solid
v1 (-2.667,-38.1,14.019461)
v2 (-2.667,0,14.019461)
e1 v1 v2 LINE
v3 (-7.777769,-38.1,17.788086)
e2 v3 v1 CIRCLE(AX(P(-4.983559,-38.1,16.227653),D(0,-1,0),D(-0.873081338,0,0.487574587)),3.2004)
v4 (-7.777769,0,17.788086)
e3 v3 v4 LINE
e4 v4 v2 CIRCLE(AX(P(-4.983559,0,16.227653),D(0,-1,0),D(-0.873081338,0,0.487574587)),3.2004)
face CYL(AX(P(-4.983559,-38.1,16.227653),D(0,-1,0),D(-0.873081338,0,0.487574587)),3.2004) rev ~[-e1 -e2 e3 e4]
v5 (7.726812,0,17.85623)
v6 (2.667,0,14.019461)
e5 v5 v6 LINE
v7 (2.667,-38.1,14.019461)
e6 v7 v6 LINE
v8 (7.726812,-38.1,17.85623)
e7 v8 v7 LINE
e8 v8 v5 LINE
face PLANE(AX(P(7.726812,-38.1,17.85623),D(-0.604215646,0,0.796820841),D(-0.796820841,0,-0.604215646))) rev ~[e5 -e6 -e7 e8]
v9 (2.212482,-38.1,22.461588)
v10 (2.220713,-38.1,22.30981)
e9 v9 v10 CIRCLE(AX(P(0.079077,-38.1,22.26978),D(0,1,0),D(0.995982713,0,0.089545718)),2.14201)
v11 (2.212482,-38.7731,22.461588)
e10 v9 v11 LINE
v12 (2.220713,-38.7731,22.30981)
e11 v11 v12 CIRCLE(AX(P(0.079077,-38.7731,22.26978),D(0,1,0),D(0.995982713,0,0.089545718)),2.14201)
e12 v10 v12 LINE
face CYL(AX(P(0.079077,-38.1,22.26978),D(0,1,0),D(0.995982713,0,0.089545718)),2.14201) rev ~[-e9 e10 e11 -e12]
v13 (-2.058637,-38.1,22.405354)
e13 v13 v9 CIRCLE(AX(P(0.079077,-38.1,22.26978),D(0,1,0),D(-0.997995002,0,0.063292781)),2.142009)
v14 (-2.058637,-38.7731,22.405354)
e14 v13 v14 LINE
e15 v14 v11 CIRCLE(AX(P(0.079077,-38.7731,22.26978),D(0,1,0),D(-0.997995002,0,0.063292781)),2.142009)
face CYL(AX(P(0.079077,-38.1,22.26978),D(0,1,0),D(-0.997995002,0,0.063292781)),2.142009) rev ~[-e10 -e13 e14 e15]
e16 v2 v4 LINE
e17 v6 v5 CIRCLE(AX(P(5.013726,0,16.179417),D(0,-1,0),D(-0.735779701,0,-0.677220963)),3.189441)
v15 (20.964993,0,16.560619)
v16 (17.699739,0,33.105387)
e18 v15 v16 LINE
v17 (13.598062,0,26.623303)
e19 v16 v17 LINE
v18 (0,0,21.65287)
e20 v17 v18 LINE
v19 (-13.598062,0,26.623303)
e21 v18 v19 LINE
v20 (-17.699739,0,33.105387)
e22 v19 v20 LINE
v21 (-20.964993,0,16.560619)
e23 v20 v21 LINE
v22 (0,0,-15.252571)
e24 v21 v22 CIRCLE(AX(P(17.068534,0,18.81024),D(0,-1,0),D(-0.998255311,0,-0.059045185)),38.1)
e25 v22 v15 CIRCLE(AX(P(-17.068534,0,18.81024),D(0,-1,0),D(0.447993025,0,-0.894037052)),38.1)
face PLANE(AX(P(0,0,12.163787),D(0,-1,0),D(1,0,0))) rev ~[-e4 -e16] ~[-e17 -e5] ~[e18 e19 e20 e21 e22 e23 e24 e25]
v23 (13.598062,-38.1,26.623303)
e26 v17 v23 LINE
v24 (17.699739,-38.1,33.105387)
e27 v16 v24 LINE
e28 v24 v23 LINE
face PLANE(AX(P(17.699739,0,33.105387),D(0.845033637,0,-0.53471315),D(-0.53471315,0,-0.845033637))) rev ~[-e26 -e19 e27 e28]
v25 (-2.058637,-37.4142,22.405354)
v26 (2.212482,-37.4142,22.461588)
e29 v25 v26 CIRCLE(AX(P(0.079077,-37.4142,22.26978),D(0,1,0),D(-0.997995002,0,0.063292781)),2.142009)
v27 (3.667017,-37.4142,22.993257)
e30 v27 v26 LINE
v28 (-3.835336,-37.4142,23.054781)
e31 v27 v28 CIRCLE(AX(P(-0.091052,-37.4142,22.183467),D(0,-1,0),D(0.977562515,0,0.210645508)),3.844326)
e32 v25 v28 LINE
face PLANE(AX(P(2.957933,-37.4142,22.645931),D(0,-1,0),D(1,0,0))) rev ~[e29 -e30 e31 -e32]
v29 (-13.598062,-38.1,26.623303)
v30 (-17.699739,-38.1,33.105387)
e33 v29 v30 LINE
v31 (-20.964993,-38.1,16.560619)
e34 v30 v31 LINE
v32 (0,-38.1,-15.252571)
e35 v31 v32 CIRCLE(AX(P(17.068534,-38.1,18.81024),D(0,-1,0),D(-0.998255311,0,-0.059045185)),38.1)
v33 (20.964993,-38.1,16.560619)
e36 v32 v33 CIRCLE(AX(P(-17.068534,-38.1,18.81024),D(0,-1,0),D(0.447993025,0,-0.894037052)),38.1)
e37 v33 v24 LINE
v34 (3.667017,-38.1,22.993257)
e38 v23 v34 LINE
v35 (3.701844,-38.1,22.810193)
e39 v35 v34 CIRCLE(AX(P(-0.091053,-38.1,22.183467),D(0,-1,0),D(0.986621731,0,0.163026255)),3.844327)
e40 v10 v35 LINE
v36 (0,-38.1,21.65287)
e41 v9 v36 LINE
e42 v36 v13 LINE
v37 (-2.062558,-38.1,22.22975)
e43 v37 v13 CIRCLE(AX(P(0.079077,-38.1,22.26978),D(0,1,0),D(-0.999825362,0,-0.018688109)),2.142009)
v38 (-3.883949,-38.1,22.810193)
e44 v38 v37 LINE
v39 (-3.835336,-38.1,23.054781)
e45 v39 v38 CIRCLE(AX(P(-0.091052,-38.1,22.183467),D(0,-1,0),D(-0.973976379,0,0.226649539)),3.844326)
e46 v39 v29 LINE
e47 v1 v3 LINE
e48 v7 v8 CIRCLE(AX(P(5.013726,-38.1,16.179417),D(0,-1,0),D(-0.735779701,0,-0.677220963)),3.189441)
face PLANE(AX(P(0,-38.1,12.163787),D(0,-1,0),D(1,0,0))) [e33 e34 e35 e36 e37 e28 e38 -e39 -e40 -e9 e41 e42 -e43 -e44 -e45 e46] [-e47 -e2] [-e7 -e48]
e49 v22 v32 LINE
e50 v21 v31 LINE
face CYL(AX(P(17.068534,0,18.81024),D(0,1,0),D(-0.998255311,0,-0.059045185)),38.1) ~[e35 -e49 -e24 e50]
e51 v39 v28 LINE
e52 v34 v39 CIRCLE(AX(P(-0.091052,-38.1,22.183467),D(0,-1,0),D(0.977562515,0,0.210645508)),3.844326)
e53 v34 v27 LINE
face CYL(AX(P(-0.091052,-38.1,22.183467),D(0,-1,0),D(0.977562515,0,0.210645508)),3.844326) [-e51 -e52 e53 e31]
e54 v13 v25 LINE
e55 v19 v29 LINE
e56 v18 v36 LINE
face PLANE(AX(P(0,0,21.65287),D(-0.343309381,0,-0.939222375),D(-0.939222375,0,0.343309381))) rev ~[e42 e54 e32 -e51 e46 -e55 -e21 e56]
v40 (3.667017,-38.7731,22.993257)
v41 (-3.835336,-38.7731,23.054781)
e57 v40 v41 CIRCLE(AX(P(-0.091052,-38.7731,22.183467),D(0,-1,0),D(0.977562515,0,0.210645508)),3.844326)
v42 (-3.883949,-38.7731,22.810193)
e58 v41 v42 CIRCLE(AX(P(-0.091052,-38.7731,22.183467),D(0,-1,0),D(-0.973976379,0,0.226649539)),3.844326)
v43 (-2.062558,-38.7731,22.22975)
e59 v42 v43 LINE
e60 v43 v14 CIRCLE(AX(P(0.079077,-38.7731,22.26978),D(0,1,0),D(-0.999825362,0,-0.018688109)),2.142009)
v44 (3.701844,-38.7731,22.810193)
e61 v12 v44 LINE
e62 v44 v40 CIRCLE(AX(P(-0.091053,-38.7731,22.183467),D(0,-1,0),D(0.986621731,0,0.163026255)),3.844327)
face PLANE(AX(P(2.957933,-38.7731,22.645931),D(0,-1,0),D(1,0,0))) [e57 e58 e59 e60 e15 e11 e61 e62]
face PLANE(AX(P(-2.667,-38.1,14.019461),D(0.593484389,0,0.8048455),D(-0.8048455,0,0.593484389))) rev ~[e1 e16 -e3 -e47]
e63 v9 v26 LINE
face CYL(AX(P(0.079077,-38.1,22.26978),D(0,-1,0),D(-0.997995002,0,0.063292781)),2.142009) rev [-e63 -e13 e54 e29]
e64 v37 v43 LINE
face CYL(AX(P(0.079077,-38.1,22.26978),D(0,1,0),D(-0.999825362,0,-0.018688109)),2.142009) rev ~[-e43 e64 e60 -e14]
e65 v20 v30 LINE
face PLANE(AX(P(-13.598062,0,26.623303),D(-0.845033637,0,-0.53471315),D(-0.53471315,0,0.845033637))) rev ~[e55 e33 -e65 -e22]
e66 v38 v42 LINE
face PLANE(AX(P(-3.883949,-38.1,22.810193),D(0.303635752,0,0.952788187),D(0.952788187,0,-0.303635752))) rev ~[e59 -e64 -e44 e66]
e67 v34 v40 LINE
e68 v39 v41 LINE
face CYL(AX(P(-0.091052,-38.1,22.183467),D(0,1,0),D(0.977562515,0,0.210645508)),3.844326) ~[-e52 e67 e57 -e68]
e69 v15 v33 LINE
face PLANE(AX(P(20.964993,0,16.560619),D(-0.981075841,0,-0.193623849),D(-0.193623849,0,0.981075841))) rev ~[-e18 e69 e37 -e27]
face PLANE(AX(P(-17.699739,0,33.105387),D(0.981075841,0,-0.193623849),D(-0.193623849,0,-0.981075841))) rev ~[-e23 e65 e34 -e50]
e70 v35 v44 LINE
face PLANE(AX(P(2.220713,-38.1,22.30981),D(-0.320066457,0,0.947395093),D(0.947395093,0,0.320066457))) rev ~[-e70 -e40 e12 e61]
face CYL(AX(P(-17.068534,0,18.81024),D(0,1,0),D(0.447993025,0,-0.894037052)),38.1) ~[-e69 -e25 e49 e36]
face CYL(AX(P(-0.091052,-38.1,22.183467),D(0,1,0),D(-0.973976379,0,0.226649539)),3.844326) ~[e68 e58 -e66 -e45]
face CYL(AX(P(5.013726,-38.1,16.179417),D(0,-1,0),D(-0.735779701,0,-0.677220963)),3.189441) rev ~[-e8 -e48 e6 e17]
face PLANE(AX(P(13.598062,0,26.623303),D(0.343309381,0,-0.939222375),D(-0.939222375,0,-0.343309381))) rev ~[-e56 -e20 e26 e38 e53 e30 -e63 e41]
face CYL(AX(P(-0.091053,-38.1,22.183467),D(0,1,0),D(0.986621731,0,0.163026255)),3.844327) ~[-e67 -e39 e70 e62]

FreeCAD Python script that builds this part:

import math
import FreeCAD as App
import Part
import Sketcher

V = App.Vector
Q = App.Units.Quantity

doc = App.newDocument("Part")
body = doc.addObject("PartDesign::Body", "Body")

# Sketch on XZ plane
sketch1 = doc.addObject("Sketcher::SketchObject", "Sketch")
body.addObject(sketch1)
sketch1.AttachmentSupport = (doc.XZ_Plane, [""])
sketch1.MapMode = "FlatFace"
sketch1.addGeometry(Part.LineSegment(V(-18, 33, 0), V(-21, 17, 0)), False)
sketch1.addGeometry(Part.ArcOfCircle(Part.Circle(V(17, 19, 0), V(0, 0, 1), 38), math.radians(-177), math.radians(-117)), False)
sketch1.addGeometry(Part.ArcOfCircle(Part.Circle(V(-17, 19, 0), V(0, 0, 1), 38), math.radians(-63), math.radians(-3)), False)
sketch1.addGeometry(Part.LineSegment(V(21, 17, 0), V(18, 33, 0)), False)
sketch1.addGeometry(Part.LineSegment(V(18, 33, 0), V(14, 27, 0)), False)
sketch1.addGeometry(Part.LineSegment(V(14, 27, 0), V(0, 22, 0)), False)
sketch1.addGeometry(Part.LineSegment(V(0, 22, 0), V(-14, 27, 0)), False)
sketch1.addGeometry(Part.LineSegment(V(-14, 27, 0), V(-18, 33, 0)), False)
sketch1.addConstraint(Sketcher.Constraint("Coincident", 0, 2, 1, 1))
sketch1.addConstraint(Sketcher.Constraint("Coincident", 1, 2, 2, 1))
sketch1.addConstraint(Sketcher.Constraint("Coincident", 2, 2, 3, 1))
sketch1.addConstraint(Sketcher.Constraint("Coincident", 3, 2, 4, 1))
sketch1.addConstraint(Sketcher.Constraint("Coincident", 4, 2, 5, 1))
sketch1.addConstraint(Sketcher.Constraint("Coincident", 5, 2, 6, 1))
sketch1.addConstraint(Sketcher.Constraint("Coincident", 6, 2, 7, 1))
sketch1.addConstraint(Sketcher.Constraint("Coincident", 7, 2, 0, 1))
sketch1.addConstraint(Sketcher.Constraint("Equal", 1, 2))
sketch1.addConstraint(Sketcher.Constraint("Symmetric", 1, 3, 2, 3, -2))
sketch1.addConstraint(Sketcher.Constraint("Symmetric", 4, 2, 6, 2, -2))
sketch1.addConstraint(Sketcher.Constraint("Symmetric", 3, 2, 7, 2, -2))
sketch1.addConstraint(Sketcher.Constraint("PointOnObject", 5, 2, -2))
sketch1.addConstraint(Sketcher.Constraint("Horizontal", 0, 2, 2, 2))
sketch1.addConstraint(Sketcher.Constraint("Radius", 1, Q("1.5 in")))
sketch1.addConstraint(Sketcher.Constraint("Distance", 5, Q("0.57 in")))
sketch1.addConstraint(Sketcher.Constraint("Distance", 4, Q("0.302 in")))
sketch1.addConstraint(Sketcher.Constraint("DistanceY", 4, 2, 3, 2, Q("0.2552002 in")))
sketch1.addConstraint(Sketcher.Constraint("DistanceX", 7, 2, 4, 2, 31.297801))
sketch1.addConstraint(Sketcher.Constraint("DistanceY", -1, 1, 1, 3, 18.81024))
sketch1.addConstraint(Sketcher.Constraint("DistanceY", -1, 1, 0, 2, 16.560619))
sketch1.addConstraint(Sketcher.Constraint("DistanceY", 1, 2, -1, 1, 15.252571))
sketch1.addConstraint(Sketcher.Constraint("DistanceY", -1, 1, 5, 2, 21.65287))
pad1 = doc.addObject("PartDesign::Pad", "Pad")
body.addObject(pad1)
pad1.Profile = sketch1
pad1.Length = Q("1.5 in")

# Sketch on XZ plane
sketch2 = doc.addObject("Sketcher::SketchObject", "Sketch001")
body.addObject(sketch2)
sketch2.AttachmentSupport = (doc.XZ_Plane, [""])
sketch2.MapMode = "FlatFace"
sketch2.AttachmentOffset = App.Placement(V(0, 0, 1.5 * 25.4), App.Rotation())
sketch2.addGeometry(Part.LineSegment(V(7.7, 17.9, 0), V(2.7, 14, 0)), False)
sketch2.addGeometry(Part.ArcOfCircle(Part.Circle(V(5, 16.2, 0), V(0, 0, 1), 3.2), math.radians(-137), math.radians(32)), False)
sketch2.addGeometry(Part.LineSegment(V(-2.7, 14, 0), V(-7.8, 17.8, 0)), False)
sketch2.addGeometry(Part.ArcOfCircle(Part.Circle(V(-5, 16.2, 0), V(0, 0, 1), 3.2), math.radians(151), math.radians(316)), False)
sketch2.addConstraint(Sketcher.Constraint("Coincident", 0, 1, 1, 2))
sketch2.addConstraint(Sketcher.Constraint("Coincident", 1, 1, 0, 2))
sketch2.addConstraint(Sketcher.Constraint("Coincident", 2, 1, 3, 2))
sketch2.addConstraint(Sketcher.Constraint("Coincident", 3, 1, 2, 2))
sketch2.addConstraint(Sketcher.Constraint("Symmetric", 1, 1, 2, 1, -2))
sketch2.addConstraint(Sketcher.Constraint("Equal", 0, 2))
sketch2.addConstraint(Sketcher.Constraint("Radius", 3, Q("0.126 in")))
sketch2.addConstraint(Sketcher.Constraint("Distance", 0, Q("0.25 in")))
sketch2.addConstraint(Sketcher.Constraint("DistanceX", 2, 1, 1, 1, Q("0.21 in")))
sketch2.addConstraint(Sketcher.Constraint("Radius", 1, 3.189441))
sketch2.addConstraint(Sketcher.Constraint("DistanceX", 3, 3, -1, 1, 4.983559))
sketch2.addConstraint(Sketcher.Constraint("DistanceY", -1, 1, 0, 1, 17.85623))
sketch2.addConstraint(Sketcher.Constraint("DistanceY", -1, 1, 1, 1, 14.019461))
pocket1 = doc.addObject("PartDesign::Pocket", "Pocket")
body.addObject(pocket1)
pocket1.Profile = sketch2
pocket1.Length = Q("1.5 in")

# Sketch on XZ plane
sketch3 = doc.addObject("Sketcher::SketchObject", "Sketch002")
body.addObject(sketch3)
sketch3.AttachmentSupport = (doc.XZ_Plane, [""])
sketch3.MapMode = "FlatFace"
sketch3.AttachmentOffset = App.Placement(V(0, 0, 1.5 * 25.4), App.Rotation())
sketch3.addGeometry(Part.LineSegment(V(2.22, 22.31, 0), V(3.7, 22.81, 0)), False)
sketch3.addGeometry(Part.ArcOfCircle(Part.Circle(V(-0.09, 22.18, 0), V(0, 0, 1), 3.84), math.radians(9.38), math.radians(12.16)), False)
sketch3.addGeometry(Part.ArcOfCircle(Part.Circle(V(-0.09, 22.18, 0), V(0, 0, 1), 3.84), math.radians(12), math.radians(167)), False)
sketch3.addGeometry(Part.ArcOfCircle(Part.Circle(V(-0.09, 22.18, 0), V(0, 0, 1), 3.84), math.radians(166.9), math.radians(170.62)), False)
sketch3.addGeometry(Part.LineSegment(V(-3.88, 22.81, 0), V(-2.06, 22.23, 0)), False)
sketch3.addGeometry(Part.ArcOfCircle(Part.Circle(V(0.08, 22.27, 0), V(0, 0, 1), 2.14), math.radians(176.37), math.radians(181.07)), False)
sketch3.addGeometry(Part.ArcOfCircle(Part.Circle(V(0.08, 22.27, 0), V(0, 0, 1), 2.14), math.radians(5), math.radians(176)), False)
sketch3.addGeometry(Part.ArcOfCircle(Part.Circle(V(0.08, 22.27, 0), V(0, 0, 1), 2.14), math.radians(1.07), math.radians(5.14)), False)
sketch3.addConstraint(Sketcher.Constraint("Coincident", 0, 2, 1, 1))
sketch3.addConstraint(Sketcher.Constraint("Tangent", 1, 2, 2, 1))
sketch3.addConstraint(Sketcher.Constraint("Tangent", 2, 2, 3, 1))
sketch3.addConstraint(Sketcher.Constraint("Coincident", 3, 2, 4, 1))
sketch3.addConstraint(Sketcher.Constraint("Coincident", 4, 2, 5, 2))
sketch3.addConstraint(Sketcher.Constraint("Tangent", 5, 1, 6, 2))
sketch3.addConstraint(Sketcher.Constraint("Tangent", 6, 1, 7, 2))
sketch3.addConstraint(Sketcher.Constraint("Coincident", 7, 1, 0, 1))
sketch3.addConstraint(Sketcher.Constraint("Coincident", 3, 3, 1, 3))
sketch3.addConstraint(Sketcher.Constraint("Coincident", 7, 3, 5, 3))
sketch3.addConstraint(Sketcher.Constraint("Horizontal", 0, 2, 3, 2))
sketch3.addConstraint(Sketcher.Constraint("Radius", 5, 2.142009))
sketch3.addConstraint(Sketcher.Constraint("Radius", 1, 3.844327))
sketch3.addConstraint(Sketcher.Constraint("DistanceY", 7, 1, 0, 2, Q("0.0197001 in")))
sketch3.addConstraint(Sketcher.Constraint("DistanceY", 7, 3, 2, 2, 0.785002))
sketch3.addConstraint(Sketcher.Constraint("DistanceX", 2, 2, 5, 1, 1.776698))
sketch3.addConstraint(Sketcher.Constraint("Distance", 0, 1.563372))
sketch3.addConstraint(Sketcher.Constraint("DistanceY", -1, 1, 5, 3, 22.26978))
sketch3.addConstraint(Sketcher.Constraint("DistanceX", 3, 2, -1, 1, 3.883949))
sketch3.addConstraint(Sketcher.Constraint("DistanceY", -1, 1, 4, 2, 22.22975))
sketch3.addConstraint(Sketcher.Constraint("DistanceX", -1, 1, 6, 1, 2.212482))
sketch3.addConstraint(Sketcher.Constraint("DistanceY", -1, 1, 7, 1, 22.30981))
sketch3.addConstraint(Sketcher.Constraint("DistanceX", 3, 3, 5, 3, 0.17013))
sketch3.addConstraint(Sketcher.Constraint("DistanceX", 6, 3, 1, 2, 3.58794))
pad2 = doc.addObject("PartDesign::Pad", "Pad001")
body.addObject(pad2)
pad2.Profile = sketch3
pad2.Type = "TwoLengths"
pad2.Length = Q("0.0265 in")
pad2.Length2 = Q("0.027 in")

doc.recompute()
